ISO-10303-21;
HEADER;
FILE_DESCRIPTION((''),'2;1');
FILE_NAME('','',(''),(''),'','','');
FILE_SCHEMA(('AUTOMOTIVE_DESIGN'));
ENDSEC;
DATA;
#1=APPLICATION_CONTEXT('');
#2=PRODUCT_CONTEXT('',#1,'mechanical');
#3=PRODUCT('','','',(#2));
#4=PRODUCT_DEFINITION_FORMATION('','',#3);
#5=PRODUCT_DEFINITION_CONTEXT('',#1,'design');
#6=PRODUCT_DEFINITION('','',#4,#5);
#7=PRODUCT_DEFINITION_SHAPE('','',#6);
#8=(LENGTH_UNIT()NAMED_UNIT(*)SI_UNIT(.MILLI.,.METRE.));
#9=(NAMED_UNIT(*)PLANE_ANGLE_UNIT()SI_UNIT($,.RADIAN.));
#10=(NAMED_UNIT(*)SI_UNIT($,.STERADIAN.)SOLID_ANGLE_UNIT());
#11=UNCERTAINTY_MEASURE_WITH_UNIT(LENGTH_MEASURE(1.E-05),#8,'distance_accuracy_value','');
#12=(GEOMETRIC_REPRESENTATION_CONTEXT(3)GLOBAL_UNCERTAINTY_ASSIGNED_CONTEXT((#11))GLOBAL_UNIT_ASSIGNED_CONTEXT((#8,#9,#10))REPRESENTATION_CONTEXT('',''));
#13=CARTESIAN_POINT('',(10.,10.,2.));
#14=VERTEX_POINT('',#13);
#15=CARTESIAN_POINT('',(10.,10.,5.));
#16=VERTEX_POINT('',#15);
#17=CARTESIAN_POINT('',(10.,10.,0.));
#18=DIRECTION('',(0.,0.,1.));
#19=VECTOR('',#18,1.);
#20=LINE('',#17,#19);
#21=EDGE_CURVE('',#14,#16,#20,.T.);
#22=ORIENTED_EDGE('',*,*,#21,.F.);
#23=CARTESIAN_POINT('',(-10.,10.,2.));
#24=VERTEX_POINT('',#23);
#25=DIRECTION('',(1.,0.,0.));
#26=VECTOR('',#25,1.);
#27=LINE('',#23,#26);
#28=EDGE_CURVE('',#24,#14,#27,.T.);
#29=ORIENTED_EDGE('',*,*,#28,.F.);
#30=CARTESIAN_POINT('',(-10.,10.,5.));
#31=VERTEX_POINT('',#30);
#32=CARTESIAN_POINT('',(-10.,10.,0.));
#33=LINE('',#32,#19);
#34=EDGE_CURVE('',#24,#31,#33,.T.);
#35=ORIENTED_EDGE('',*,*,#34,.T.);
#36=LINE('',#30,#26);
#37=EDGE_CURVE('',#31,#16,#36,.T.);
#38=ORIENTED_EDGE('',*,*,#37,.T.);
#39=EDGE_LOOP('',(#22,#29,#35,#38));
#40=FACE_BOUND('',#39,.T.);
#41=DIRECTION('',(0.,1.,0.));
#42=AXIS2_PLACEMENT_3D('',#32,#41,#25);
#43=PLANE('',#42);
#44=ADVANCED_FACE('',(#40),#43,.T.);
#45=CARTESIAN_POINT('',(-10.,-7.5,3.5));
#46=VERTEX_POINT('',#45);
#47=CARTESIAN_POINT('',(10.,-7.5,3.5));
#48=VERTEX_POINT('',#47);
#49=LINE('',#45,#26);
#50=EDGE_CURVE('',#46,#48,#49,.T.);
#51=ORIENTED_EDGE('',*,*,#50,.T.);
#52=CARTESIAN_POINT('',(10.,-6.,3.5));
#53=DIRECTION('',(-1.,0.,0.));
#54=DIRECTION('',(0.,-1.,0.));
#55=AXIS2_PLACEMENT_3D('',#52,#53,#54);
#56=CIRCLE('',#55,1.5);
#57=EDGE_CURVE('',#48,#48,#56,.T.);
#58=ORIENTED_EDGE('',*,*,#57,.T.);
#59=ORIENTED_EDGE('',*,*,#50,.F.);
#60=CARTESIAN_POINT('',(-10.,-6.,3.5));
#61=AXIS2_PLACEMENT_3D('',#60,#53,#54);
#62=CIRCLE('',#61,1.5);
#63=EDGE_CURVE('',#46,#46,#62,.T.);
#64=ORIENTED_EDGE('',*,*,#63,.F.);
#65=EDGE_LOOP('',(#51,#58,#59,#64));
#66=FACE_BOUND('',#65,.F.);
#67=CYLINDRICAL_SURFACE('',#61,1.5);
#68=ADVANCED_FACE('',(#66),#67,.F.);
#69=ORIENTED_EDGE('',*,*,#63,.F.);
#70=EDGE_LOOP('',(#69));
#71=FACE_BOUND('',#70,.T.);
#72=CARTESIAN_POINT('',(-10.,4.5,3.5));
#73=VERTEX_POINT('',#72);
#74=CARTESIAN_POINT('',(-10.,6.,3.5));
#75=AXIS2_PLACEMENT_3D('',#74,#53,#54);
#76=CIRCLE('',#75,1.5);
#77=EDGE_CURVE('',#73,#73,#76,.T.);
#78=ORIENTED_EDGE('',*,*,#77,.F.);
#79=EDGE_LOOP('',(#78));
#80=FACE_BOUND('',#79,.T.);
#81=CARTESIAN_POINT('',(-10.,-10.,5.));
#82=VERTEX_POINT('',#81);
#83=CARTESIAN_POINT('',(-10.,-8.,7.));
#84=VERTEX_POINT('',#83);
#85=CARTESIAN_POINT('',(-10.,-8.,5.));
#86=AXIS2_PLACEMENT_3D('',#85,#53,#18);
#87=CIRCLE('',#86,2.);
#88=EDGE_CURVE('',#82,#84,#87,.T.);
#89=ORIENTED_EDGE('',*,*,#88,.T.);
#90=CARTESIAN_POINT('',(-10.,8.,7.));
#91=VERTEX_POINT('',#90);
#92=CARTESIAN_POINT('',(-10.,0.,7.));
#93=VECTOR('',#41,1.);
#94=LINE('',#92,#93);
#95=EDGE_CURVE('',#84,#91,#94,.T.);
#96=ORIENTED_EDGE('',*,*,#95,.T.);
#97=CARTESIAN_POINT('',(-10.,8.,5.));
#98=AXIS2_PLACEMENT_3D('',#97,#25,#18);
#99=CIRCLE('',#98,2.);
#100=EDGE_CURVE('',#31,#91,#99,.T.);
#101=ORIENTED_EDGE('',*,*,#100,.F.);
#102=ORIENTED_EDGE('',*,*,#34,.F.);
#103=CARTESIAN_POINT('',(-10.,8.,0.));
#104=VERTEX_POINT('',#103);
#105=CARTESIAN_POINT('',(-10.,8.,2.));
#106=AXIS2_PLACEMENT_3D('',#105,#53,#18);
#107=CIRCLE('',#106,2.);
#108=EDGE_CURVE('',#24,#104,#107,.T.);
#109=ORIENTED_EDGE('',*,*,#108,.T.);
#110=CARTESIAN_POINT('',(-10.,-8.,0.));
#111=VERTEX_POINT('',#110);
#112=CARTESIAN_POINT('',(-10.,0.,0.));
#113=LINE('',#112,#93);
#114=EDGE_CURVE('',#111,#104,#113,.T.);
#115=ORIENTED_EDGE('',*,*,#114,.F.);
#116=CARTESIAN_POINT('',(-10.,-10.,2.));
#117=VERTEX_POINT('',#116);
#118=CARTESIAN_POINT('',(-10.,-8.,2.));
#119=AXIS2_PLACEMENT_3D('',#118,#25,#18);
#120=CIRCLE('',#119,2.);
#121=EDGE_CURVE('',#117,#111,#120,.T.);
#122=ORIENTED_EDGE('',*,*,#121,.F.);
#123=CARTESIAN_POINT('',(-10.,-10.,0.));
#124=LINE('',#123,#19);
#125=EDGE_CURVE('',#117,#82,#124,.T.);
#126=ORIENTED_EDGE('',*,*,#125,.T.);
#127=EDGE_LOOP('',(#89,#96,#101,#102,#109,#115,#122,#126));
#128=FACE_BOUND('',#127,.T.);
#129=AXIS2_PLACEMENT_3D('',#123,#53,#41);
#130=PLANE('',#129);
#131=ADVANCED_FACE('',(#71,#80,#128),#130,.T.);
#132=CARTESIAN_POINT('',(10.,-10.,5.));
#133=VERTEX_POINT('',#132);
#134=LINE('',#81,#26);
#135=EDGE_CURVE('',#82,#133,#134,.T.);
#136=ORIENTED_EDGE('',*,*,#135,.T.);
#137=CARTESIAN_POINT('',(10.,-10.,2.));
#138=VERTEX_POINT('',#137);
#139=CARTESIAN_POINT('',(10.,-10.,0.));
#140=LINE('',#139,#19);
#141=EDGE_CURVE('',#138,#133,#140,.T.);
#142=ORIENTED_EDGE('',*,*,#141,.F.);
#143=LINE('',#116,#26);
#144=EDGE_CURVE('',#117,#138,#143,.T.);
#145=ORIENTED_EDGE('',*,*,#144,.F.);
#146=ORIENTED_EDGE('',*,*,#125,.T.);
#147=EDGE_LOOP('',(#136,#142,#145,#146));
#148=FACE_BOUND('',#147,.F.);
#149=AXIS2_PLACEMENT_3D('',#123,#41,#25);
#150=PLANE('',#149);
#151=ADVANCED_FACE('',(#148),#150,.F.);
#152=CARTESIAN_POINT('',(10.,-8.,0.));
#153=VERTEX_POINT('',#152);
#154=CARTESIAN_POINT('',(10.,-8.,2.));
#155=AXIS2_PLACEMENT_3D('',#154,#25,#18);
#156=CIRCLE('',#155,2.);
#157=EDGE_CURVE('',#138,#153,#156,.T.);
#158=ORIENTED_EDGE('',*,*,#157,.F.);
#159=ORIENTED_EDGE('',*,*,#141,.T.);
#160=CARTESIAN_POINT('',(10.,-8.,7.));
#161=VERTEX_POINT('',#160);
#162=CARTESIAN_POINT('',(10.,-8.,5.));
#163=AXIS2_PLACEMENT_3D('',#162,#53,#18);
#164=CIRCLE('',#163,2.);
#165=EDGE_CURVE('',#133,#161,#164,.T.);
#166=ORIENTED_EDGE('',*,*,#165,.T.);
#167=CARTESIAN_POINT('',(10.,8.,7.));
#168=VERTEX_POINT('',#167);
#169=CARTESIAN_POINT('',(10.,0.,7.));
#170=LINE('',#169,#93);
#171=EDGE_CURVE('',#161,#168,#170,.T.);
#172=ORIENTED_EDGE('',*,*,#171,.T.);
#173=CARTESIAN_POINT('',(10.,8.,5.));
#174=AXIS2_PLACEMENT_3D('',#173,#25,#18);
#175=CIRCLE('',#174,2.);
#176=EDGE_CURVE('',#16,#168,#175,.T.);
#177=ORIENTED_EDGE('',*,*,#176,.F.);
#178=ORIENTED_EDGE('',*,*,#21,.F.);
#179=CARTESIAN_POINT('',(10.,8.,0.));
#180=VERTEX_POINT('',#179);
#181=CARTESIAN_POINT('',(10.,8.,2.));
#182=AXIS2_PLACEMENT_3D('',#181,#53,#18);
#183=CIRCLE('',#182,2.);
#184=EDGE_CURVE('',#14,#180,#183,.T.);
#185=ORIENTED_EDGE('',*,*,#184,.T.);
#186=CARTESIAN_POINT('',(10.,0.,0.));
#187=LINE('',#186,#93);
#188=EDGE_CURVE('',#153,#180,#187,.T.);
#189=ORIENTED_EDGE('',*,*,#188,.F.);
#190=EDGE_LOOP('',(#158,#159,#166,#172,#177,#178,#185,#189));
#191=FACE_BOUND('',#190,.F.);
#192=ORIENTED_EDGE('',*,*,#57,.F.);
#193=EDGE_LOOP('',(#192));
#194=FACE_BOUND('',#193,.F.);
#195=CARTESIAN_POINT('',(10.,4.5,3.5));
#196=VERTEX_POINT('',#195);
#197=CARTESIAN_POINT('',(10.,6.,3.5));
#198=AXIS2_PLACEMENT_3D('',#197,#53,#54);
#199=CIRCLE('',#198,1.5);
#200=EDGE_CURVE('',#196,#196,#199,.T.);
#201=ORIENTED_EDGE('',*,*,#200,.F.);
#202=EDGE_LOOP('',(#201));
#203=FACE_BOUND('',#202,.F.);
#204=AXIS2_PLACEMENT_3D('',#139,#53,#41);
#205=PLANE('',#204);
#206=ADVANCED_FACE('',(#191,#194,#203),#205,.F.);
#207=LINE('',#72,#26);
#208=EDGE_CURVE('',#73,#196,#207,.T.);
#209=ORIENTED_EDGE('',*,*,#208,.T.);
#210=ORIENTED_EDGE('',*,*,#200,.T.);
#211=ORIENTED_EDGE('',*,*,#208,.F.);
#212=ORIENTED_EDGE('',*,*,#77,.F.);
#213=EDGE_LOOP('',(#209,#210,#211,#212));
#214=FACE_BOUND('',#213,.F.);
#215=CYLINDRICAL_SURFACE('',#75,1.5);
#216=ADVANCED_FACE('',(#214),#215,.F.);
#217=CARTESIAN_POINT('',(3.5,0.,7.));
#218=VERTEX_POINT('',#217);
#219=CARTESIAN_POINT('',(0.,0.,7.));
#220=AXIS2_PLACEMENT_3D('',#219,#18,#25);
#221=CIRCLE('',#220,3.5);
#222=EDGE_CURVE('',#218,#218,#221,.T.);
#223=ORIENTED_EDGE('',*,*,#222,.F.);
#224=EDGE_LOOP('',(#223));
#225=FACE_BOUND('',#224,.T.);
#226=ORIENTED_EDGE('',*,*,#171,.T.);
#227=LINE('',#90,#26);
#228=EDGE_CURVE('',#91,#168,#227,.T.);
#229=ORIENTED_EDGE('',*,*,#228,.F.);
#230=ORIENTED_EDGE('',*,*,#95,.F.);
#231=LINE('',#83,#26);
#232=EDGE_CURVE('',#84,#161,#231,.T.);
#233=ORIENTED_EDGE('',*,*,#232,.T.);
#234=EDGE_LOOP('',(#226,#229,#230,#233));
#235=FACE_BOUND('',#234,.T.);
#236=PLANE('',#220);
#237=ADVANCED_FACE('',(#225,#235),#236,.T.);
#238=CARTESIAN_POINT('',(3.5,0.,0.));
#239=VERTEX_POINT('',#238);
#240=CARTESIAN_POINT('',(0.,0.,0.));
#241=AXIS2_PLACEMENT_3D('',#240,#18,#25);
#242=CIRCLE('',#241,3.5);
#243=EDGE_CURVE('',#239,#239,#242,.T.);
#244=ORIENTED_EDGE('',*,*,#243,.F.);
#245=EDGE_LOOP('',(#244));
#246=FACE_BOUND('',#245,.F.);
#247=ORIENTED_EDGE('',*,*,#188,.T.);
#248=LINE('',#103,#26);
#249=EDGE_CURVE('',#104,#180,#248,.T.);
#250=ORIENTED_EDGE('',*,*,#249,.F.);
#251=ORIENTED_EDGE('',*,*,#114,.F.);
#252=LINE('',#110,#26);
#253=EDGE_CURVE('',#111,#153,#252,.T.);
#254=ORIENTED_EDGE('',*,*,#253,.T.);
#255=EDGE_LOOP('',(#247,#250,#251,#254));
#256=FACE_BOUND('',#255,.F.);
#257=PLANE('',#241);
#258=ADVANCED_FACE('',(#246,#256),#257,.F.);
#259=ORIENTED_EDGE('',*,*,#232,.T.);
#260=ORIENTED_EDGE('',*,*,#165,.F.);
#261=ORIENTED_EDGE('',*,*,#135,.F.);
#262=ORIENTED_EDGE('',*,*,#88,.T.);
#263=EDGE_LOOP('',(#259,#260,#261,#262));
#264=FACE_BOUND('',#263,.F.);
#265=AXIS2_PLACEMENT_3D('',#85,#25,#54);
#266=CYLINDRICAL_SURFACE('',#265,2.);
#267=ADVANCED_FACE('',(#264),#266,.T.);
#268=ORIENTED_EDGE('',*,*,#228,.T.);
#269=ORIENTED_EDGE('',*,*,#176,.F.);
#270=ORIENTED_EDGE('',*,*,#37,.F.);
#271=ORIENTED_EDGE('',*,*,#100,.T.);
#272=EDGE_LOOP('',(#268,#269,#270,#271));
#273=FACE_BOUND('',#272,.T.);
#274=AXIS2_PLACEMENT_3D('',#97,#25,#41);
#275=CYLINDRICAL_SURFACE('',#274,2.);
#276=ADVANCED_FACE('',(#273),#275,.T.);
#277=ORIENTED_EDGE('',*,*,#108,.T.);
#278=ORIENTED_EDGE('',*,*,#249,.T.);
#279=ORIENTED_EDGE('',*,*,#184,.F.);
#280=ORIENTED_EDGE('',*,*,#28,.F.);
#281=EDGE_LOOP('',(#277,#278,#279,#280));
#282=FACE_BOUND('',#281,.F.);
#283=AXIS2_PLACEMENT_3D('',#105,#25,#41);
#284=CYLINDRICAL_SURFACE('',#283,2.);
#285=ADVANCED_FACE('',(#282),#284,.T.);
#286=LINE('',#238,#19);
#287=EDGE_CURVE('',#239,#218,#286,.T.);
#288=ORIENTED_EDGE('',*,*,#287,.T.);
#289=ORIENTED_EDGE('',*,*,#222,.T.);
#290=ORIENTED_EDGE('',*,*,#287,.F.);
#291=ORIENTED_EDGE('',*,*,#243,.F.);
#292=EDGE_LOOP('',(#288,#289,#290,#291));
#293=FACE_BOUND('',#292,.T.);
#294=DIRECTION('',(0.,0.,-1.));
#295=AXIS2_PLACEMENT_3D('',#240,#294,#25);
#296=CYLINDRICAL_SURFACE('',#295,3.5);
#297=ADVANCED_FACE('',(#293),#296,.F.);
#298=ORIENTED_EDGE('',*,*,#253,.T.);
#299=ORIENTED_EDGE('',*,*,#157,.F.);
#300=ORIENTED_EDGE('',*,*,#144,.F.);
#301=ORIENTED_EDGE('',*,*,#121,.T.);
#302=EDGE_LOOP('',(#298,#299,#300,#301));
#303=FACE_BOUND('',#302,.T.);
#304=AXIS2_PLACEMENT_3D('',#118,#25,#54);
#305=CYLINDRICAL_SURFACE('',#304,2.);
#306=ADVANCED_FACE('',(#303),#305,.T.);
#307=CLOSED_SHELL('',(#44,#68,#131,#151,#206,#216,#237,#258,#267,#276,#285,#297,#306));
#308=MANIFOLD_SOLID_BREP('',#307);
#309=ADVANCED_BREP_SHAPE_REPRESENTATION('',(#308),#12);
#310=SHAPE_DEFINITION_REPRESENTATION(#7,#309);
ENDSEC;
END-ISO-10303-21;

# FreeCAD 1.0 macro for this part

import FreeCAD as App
import Part
import Sketcher

V = App.Vector


def edges_at(feature, points):
    """Names of the edges that pass closest to the given points."""
    edges = feature.Shape.Edges
    near = lambda p: min(range(len(edges)), key=lambda i: edges[i].distToShape(Part.Vertex(*p))[0])
    return sorted({f"Edge{near(p) + 1}" for p in points})

doc = App.newDocument("Part")
body = doc.addObject("PartDesign::Body", "Body")

sketch1 = body.newObject("Sketcher::SketchObject", "Sketch")
sketch1.AttachmentSupport = (doc.getObject("XY_Plane"), [""])
sketch1.MapMode = "FlatFace"
sketch1.addGeometry([
    Part.LineSegment(V(-10, 10, 0), V(-10, -10, 0)),
    Part.LineSegment(V(-10, -10, 0), V(10, -10, 0)),
    Part.LineSegment(V(10, -10, 0), V(10, 10, 0)),
    Part.LineSegment(V(10, 10, 0), V(-10, 10, 0)),
    Part.Circle(V(0, 0, 0), V(0, 0, 1), 3.5),
], False)
sketch1.addConstraint([
    Sketcher.Constraint("Coincident", 0, 2, 1, 1),
    Sketcher.Constraint("Coincident", 1, 2, 2, 1),
    Sketcher.Constraint("Coincident", 2, 2, 3, 1),
    Sketcher.Constraint("Coincident", 3, 2, 0, 1),
    Sketcher.Constraint("Vertical", 0),
    Sketcher.Constraint("Horizontal", 1),
    Sketcher.Constraint("Vertical", 2),
    Sketcher.Constraint("Horizontal", 3),
    Sketcher.Constraint("Coincident", 4, 3, -1, 1),
    Sketcher.Constraint("Symmetric", 0, 2, 2, 2, -1, 1),
    Sketcher.Constraint("Equal", 3, 0),
    Sketcher.Constraint("Diameter", 4, 7.0),
    Sketcher.Constraint("DistanceX", 1, 1, 1, 2, 20.0),
])
pad1 = body.newObject("PartDesign::Pad", "Pad")
pad1.Profile = sketch1
pad1.Length = 7
doc.recompute()

fillet = body.newObject("PartDesign::Fillet", "Fillet")
fillet.Base = (pad1, edges_at(pad1, [
    (0, -10, 7),
    (0, -10, 0),
    (0, 10, 7),
    (0, 10, 0),
]))
fillet.Radius = 2

sketch2 = body.newObject("Sketcher::SketchObject", "Sketch001")
sketch2.AttachmentSupport = (doc.getObject("YZ_Plane"), [""])
sketch2.MapMode = "FlatFace"
sketch2.AttachmentOffset = App.Placement(V(0, 0, -10), App.Rotation())
sketch2.addGeometry([
    Part.Circle(V(6, 3.5, 0), V(0, 0, 1), 1.5),
    Part.Circle(V(-6, 3.5, 0), V(0, 0, 1), 1.5),
], False)
sketch2.addConstraint([
    Sketcher.Constraint("Equal", 0, 1),
    Sketcher.Constraint("Symmetric", 0, 3, 1, 3, -2),
    Sketcher.Constraint("Diameter", 0, 3.0),
    Sketcher.Constraint("DistanceX", -1, 1, 0, 3, 6.0),
    Sketcher.Constraint("DistanceY", -1, 1, 0, 3, 3.5),
])
pocket1 = body.newObject("PartDesign::Pocket", "Pocket")
pocket1.Profile = sketch2
pocket1.Length = 25
pocket1.Reversed = True

doc.recompute()
